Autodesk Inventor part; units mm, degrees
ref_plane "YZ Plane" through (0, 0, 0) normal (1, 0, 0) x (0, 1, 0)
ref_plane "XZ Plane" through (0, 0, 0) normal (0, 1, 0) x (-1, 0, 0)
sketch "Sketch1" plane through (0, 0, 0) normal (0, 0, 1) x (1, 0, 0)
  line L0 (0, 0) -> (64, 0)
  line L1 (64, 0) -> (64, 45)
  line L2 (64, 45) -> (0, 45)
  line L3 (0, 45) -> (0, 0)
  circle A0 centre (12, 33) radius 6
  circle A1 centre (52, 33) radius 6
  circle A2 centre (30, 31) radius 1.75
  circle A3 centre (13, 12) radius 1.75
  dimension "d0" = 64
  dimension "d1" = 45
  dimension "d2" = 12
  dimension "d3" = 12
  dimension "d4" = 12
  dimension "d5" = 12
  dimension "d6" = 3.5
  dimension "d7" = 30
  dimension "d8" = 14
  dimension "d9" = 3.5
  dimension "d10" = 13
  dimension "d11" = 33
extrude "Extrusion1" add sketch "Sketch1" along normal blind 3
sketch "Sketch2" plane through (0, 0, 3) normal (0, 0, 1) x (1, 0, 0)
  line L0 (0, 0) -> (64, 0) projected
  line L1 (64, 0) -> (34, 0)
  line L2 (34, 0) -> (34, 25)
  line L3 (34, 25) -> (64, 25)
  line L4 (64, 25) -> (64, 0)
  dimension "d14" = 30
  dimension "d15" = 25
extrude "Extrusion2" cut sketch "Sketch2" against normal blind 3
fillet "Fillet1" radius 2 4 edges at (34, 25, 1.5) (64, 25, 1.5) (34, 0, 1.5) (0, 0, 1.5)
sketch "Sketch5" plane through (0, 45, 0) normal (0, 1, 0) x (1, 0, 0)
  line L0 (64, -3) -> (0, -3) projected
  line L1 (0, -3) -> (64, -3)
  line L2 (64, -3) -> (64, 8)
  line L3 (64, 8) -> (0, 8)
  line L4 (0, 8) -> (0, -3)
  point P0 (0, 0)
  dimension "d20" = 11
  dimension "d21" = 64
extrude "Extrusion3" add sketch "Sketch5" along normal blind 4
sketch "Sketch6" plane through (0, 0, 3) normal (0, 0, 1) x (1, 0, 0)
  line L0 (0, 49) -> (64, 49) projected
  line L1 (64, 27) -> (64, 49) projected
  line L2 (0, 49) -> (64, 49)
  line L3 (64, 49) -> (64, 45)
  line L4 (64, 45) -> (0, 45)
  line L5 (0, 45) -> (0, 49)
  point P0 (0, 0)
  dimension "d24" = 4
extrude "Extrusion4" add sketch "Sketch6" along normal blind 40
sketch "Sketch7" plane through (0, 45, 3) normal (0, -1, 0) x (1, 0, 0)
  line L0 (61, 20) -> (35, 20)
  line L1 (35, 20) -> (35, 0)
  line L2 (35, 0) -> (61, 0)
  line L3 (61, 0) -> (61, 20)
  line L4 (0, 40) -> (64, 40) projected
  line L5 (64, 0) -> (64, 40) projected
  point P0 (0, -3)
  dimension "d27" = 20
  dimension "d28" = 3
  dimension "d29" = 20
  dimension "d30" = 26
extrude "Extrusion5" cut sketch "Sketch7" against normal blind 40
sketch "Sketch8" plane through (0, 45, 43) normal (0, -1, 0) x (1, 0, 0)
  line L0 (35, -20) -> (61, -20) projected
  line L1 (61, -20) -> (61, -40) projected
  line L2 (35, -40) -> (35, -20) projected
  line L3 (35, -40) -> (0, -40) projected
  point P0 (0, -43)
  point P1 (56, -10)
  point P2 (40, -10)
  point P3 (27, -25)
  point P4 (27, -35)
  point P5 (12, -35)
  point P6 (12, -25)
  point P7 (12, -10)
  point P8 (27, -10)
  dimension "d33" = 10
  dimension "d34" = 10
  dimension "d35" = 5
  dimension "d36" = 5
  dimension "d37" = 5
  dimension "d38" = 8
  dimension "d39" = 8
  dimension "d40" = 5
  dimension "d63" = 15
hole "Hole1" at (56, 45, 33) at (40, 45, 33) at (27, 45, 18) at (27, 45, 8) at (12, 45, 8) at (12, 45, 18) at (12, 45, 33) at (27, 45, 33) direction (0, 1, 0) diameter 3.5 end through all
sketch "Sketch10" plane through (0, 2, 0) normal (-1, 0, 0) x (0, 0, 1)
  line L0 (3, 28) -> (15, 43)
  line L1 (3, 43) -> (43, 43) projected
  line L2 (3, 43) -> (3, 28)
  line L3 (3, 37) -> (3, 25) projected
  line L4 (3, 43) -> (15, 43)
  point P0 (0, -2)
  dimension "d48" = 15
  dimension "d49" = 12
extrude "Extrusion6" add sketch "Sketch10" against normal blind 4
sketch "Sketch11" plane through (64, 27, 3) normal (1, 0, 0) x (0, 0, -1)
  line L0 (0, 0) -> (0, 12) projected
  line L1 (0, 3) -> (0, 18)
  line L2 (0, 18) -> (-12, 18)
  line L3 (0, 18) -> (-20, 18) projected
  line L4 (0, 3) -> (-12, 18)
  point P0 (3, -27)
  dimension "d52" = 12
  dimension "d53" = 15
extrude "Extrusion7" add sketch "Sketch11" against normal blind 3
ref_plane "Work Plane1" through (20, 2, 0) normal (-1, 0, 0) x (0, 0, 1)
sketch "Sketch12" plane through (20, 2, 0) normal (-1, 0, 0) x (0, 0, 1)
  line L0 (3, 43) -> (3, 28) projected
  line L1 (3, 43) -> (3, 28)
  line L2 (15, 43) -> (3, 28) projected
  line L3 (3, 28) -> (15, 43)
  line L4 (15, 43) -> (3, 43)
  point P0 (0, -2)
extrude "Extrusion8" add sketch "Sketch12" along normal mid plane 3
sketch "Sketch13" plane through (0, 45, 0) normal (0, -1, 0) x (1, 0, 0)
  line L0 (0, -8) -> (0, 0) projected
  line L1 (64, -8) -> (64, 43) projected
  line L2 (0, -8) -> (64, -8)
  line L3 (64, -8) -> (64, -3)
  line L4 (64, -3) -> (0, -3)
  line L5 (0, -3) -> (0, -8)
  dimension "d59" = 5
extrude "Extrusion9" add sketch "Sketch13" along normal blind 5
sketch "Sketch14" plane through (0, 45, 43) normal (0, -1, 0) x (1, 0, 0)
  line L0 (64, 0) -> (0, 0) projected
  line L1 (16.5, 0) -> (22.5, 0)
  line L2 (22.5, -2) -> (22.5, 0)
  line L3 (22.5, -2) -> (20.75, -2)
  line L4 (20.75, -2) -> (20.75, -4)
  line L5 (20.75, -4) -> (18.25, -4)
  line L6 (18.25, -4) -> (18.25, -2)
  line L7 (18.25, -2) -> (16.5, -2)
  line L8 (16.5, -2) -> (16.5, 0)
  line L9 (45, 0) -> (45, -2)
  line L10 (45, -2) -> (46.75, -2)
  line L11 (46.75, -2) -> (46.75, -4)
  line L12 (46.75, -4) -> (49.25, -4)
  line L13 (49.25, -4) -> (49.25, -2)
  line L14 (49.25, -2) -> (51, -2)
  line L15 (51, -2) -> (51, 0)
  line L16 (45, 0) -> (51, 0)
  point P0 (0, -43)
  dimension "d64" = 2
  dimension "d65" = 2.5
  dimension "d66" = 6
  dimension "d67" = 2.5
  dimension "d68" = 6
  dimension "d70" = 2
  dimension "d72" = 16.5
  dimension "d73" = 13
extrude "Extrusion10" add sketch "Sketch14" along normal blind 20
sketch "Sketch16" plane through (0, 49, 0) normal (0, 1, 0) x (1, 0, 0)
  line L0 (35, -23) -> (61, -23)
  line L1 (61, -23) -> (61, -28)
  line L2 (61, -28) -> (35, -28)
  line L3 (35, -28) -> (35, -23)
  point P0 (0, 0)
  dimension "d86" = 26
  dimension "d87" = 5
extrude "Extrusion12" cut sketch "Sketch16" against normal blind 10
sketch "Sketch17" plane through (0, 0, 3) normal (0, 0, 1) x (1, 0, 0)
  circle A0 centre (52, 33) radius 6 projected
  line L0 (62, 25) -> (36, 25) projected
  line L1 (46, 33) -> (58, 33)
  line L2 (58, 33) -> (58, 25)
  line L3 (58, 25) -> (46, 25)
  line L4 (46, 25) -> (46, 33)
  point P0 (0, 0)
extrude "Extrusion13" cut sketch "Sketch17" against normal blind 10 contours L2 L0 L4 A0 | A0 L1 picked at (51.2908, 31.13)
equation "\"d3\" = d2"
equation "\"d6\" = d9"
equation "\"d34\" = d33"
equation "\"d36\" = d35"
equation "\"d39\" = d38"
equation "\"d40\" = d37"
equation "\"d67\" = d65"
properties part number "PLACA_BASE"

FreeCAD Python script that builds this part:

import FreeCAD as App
import Part
import Sketcher

V = App.Vector


def edges_at(feature, points):
    """Names of the edges that pass closest to the given points."""
    edges = feature.Shape.Edges
    near = lambda p: min(range(len(edges)), key=lambda i: edges[i].distToShape(Part.Vertex(*p))[0])
    return sorted({f"Edge{near(p) + 1}" for p in points})

doc = App.newDocument("Part")
body = doc.addObject("PartDesign::Body", "Body")

sketch1 = body.newObject("Sketcher::SketchObject", "Sketch")
sketch1.AttachmentSupport = (doc.getObject("XY_Plane"), [""])
sketch1.MapMode = "FlatFace"
sketch1.addGeometry([
    Part.LineSegment(V(0, 45, 0), V(0, 0, 0)),
    Part.LineSegment(V(0, 0, 0), V(64, 0, 0)),
    Part.LineSegment(V(64, 0, 0), V(64, 45, 0)),
    Part.LineSegment(V(64, 45, 0), V(0, 45, 0)),
    Part.Circle(V(13, 12, 0), V(0, 0, 1), 1.75),
    Part.Circle(V(12, 33, 0), V(0, 0, 1), 6),
    Part.Circle(V(30, 31, 0), V(0, 0, 1), 1.75),
    Part.Circle(V(52, 33, 0), V(0, 0, 1), 6),
], False)
sketch1.addConstraint([
    Sketcher.Constraint("Coincident", 0, 2, 1, 1),
    Sketcher.Constraint("Coincident", 1, 2, 2, 1),
    Sketcher.Constraint("Coincident", 2, 2, 3, 1),
    Sketcher.Constraint("Coincident", 3, 2, 0, 1),
    Sketcher.Constraint("Vertical", 0),
    Sketcher.Constraint("Horizontal", 1),
    Sketcher.Constraint("Vertical", 2),
    Sketcher.Constraint("Horizontal", 3),
    Sketcher.Constraint("Coincident", 0, 2, -1, 1),
    Sketcher.Constraint("Equal", 4, 6),
    Sketcher.Constraint("Equal", 5, 7),
    Sketcher.Constraint("Horizontal", 5, 3, 7, 3),
    Sketcher.Constraint("Diameter", 5, 12.0),
    Sketcher.Constraint("Diameter", 4, 3.5),
    Sketcher.Constraint("DistanceX", 1, 1, 1, 2, 64.0),
    Sketcher.Constraint("DistanceY", 0, 2, 0, 1, 45.0),
    Sketcher.Constraint("DistanceX", -1, 1, 4, 3, 13.0),
    Sketcher.Constraint("DistanceY", -1, 1, 4, 3, 12.0),
    Sketcher.Constraint("DistanceX", -1, 1, 5, 3, 12.0),
    Sketcher.Constraint("DistanceY", -1, 1, 5, 3, 33.0),
    Sketcher.Constraint("DistanceX", -1, 1, 6, 3, 30.0),
    Sketcher.Constraint("DistanceX", 7, 3, 1, 2, 12.0),
    Sketcher.Constraint("DistanceY", 6, 3, 2, 2, 14.0),
])
pad1 = body.newObject("PartDesign::Pad", "Pad")
pad1.Profile = sketch1
pad1.Length = 3

sketch2 = body.newObject("Sketcher::SketchObject", "Sketch001")
sketch2.AttachmentSupport = (doc.getObject("XY_Plane"), [""])
sketch2.MapMode = "FlatFace"
sketch2.AttachmentOffset = App.Placement(V(0, 0, 3), App.Rotation())
sketch2.addGeometry([
    Part.LineSegment(V(34, 25, 0), V(34, 0, 0)),
    Part.LineSegment(V(34, 0, 0), V(64, 0, 0)),
    Part.LineSegment(V(64, 0, 0), V(64, 25, 0)),
    Part.LineSegment(V(64, 25, 0), V(34, 25, 0)),
], False)
sketch2.addConstraint([
    Sketcher.Constraint("Coincident", 0, 2, 1, 1),
    Sketcher.Constraint("Coincident", 1, 2, 2, 1),
    Sketcher.Constraint("Coincident", 2, 2, 3, 1),
    Sketcher.Constraint("Coincident", 3, 2, 0, 1),
    Sketcher.Constraint("Vertical", 0),
    Sketcher.Constraint("Horizontal", 1),
    Sketcher.Constraint("Vertical", 2),
    Sketcher.Constraint("Horizontal", 3),
    Sketcher.Constraint("PointOnObject", 0, 2, -1),
    Sketcher.Constraint("DistanceX", 1, 1, 1, 2, 30.0),
    Sketcher.Constraint("DistanceY", 0, 2, 0, 1, 25.0),
    Sketcher.Constraint("DistanceX", -1, 1, 0, 2, 34.0),
])
pocket1 = body.newObject("PartDesign::Pocket", "Pocket")
pocket1.Profile = sketch2
pocket1.Length = 3
doc.recompute()

fillet = body.newObject("PartDesign::Fillet", "Fillet")
fillet.Base = (pocket1, edges_at(pocket1, [
    (34, 25, 1.5),
    (64, 25, 1.5),
    (34, 0, 1.5),
    (0, 0, 1.5),
]))
fillet.Radius = 2

sketch3 = body.newObject("Sketcher::SketchObject", "Sketch002")
sketch3.AttachmentSupport = (doc.getObject("XZ_Plane"), [""])
sketch3.MapMode = "FlatFace"
sketch3.AttachmentOffset = App.Placement(V(0, 0, -45), App.Rotation())
sketch3.addGeometry([
    Part.LineSegment(V(0, 3, 0), V(64, 3, 0)),
    Part.LineSegment(V(64, 3, 0), V(64, -8, 0)),
    Part.LineSegment(V(64, -8, 0), V(0, -8, 0)),
    Part.LineSegment(V(0, -8, 0), V(0, 3, 0)),
], False)
sketch3.addConstraint([
    Sketcher.Constraint("Coincident", 0, 2, 1, 1),
    Sketcher.Constraint("Coincident", 1, 2, 2, 1),
    Sketcher.Constraint("Coincident", 2, 2, 3, 1),
    Sketcher.Constraint("Coincident", 3, 2, 0, 1),
    Sketcher.Constraint("Horizontal", 0),
    Sketcher.Constraint("Vertical", 1),
    Sketcher.Constraint("Horizontal", 2),
    Sketcher.Constraint("Vertical", 3),
    Sketcher.Constraint("PointOnObject", 2, 2, -2),
    Sketcher.Constraint("DistanceX", 0, 1, 0, 2, 64.0),
    Sketcher.Constraint("DistanceY", 1, 2, 1, 1, 11.0),
    Sketcher.Constraint("DistanceY", -1, 1, 0, 2, 3.0),
])
pad2 = body.newObject("PartDesign::Pad", "Pad001")
pad2.Profile = sketch3
pad2.Length = 4
pad2.Reversed = True

sketch4 = body.newObject("Sketcher::SketchObject", "Sketch003")
sketch4.AttachmentSupport = (doc.getObject("XY_Plane"), [""])
sketch4.MapMode = "FlatFace"
sketch4.AttachmentOffset = App.Placement(V(0, 0, 3), App.Rotation())
sketch4.addGeometry([
    Part.LineSegment(V(64, 49, 0), V(0, 49, 0)),
    Part.LineSegment(V(0, 49, 0), V(0, 45, 0)),
    Part.LineSegment(V(0, 45, 0), V(64, 45, 0)),
    Part.LineSegment(V(64, 45, 0), V(64, 49, 0)),
], False)
sketch4.addConstraint([
    Sketcher.Constraint("Coincident", 0, 2, 1, 1),
    Sketcher.Constraint("Coincident", 1, 2, 2, 1),
    Sketcher.Constraint("Coincident", 2, 2, 3, 1),
    Sketcher.Constraint("Coincident", 3, 2, 0, 1),
    Sketcher.Constraint("Horizontal", 0),
    Sketcher.Constraint("Vertical", 1),
    Sketcher.Constraint("Horizontal", 2),
    Sketcher.Constraint("Vertical", 3),
    Sketcher.Constraint("PointOnObject", 0, 2, -2),
    Sketcher.Constraint("DistanceY", 1, 2, 1, 1, 4.0),
    Sketcher.Constraint("DistanceX", 0, 2, 0, 1, 64.0),
    Sketcher.Constraint("DistanceY", -1, 1, 0, 2, 49.0),
])
pad3 = body.newObject("PartDesign::Pad", "Pad002")
pad3.Profile = sketch4
pad3.Length = 40

sketch5 = body.newObject("Sketcher::SketchObject", "Sketch004")
sketch5.AttachmentSupport = (doc.getObject("XZ_Plane"), [""])
sketch5.MapMode = "FlatFace"
sketch5.AttachmentOffset = App.Placement(V(0, 0, -45), App.Rotation())
sketch5.addGeometry([
    Part.LineSegment(V(61, 3, 0), V(61, 23, 0)),
    Part.LineSegment(V(61, 23, 0), V(35, 23, 0)),
    Part.LineSegment(V(35, 23, 0), V(35, 3, 0)),
    Part.LineSegment(V(35, 3, 0), V(61, 3, 0)),
], False)
sketch5.addConstraint([
    Sketcher.Constraint("Coincident", 0, 2, 1, 1),
    Sketcher.Constraint("Coincident", 1, 2, 2, 1),
    Sketcher.Constraint("Coincident", 2, 2, 3, 1),
    Sketcher.Constraint("Coincident", 3, 2, 0, 1),
    Sketcher.Constraint("Vertical", 0),
    Sketcher.Constraint("Horizontal", 1),
    Sketcher.Constraint("Vertical", 2),
    Sketcher.Constraint("Horizontal", 3),
    Sketcher.Constraint("DistanceX", 1, 2, 1, 1, 26.0),
    Sketcher.Constraint("DistanceY", 0, 1, 0, 2, 20.0),
    Sketcher.Constraint("DistanceY", -1, 1, 2, 2, 3.0),
    Sketcher.Constraint("DistanceX", -1, 1, 0, 2, 61.0),
])
pocket2 = body.newObject("PartDesign::Pocket", "Pocket001")
pocket2.Profile = sketch5
pocket2.Length = 40

sketch6 = body.newObject("Sketcher::SketchObject", "Sketch005")
sketch6.AttachmentSupport = (doc.getObject("XZ_Plane"), [""])
sketch6.MapMode = "FlatFace"
sketch6.AttachmentOffset = App.Placement(V(0, 0, -45), App.Rotation())
sketch6.addGeometry([
    Part.Circle(V(56, 33, 0), V(0, 0, 1), 1.75),
    Part.Circle(V(40, 33, 0), V(0, 0, 1), 1.75),
    Part.Circle(V(27, 18, 0), V(0, 0, 1), 1.75),
    Part.Circle(V(27, 8, 0), V(0, 0, 1), 1.75),
    Part.Circle(V(12, 8, 0), V(0, 0, 1), 1.75),
    Part.Circle(V(12, 18, 0), V(0, 0, 1), 1.75),
    Part.Circle(V(12, 33, 0), V(0, 0, 1), 1.75),
    Part.Circle(V(27, 33, 0), V(0, 0, 1), 1.75),
], False)
sketch6.addConstraint([
    Sketcher.Constraint("Equal", 0, 1),
    Sketcher.Constraint("Equal", 1, 2),
    Sketcher.Constraint("Equal", 2, 3),
    Sketcher.Constraint("Equal", 3, 4),
    Sketcher.Constraint("Equal", 4, 5),
    Sketcher.Constraint("Equal", 5, 6),
    Sketcher.Constraint("Equal", 6, 7),
    Sketcher.Constraint("Horizontal", 0, 3, 1, 3),
    Sketcher.Constraint("Horizontal", 3, 3, 4, 3),
    Sketcher.Constraint("Horizontal", 2, 3, 5, 3),
    Sketcher.Constraint("Horizontal", 1, 3, 6, 3),
    Sketcher.Constraint("Horizontal", 6, 3, 7, 3),
    Sketcher.Constraint("Vertical", 2, 3, 3, 3),
    Sketcher.Constraint("Vertical", 4, 3, 5, 3),
    Sketcher.Constraint("Vertical", 5, 3, 6, 3),
    Sketcher.Constraint("Vertical", 3, 3, 7, 3),
    Sketcher.Constraint("Diameter", 0, 3.5),
    Sketcher.Constraint("DistanceX", -1, 1, 0, 3, 56.0),
    Sketcher.Constraint("DistanceY", -1, 1, 0, 3, 33.0),
    Sketcher.Constraint("DistanceX", -1, 1, 1, 3, 40.0),
    Sketcher.Constraint("DistanceX", -1, 1, 2, 3, 27.0),
    Sketcher.Constraint("DistanceY", -1, 1, 2, 3, 18.0),
    Sketcher.Constraint("DistanceY", -1, 1, 3, 3, 8.0),
    Sketcher.Constraint("DistanceX", -1, 1, 4, 3, 12.0),
])
doc.recompute()
hole = body.newObject("PartDesign::Hole", "Hole")
hole.Profile = sketch6
hole.ThreadType = "None"
hole.Diameter = 3.5
hole.DepthType = "ThroughAll"

sketch7 = body.newObject("Sketcher::SketchObject", "Sketch006")
sketch7.AttachmentSupport = (doc.getObject("YZ_Plane"), [""])
sketch7.MapMode = "FlatFace"
sketch7.addGeometry([
    Part.LineSegment(V(45, 3, 0), V(30, 3, 0)),
    Part.LineSegment(V(30, 3, 0), V(45, 15, 0)),
    Part.LineSegment(V(45, 15, 0), V(45, 3, 0)),
], False)
sketch7.addConstraint([
    Sketcher.Constraint("Coincident", 0, 2, 1, 1),
    Sketcher.Constraint("Coincident", 1, 2, 2, 1),
    Sketcher.Constraint("Coincident", 2, 2, 0, 1),
    Sketcher.Constraint("Horizontal", 0),
    Sketcher.Constraint("Vertical", 2),
    Sketcher.Constraint("DistanceX", 0, 2, 0, 1, 15.0),
    Sketcher.Constraint("DistanceY", 2, 2, 2, 1, 12.0),
    Sketcher.Constraint("DistanceY", -1, 1, 1, 2, 15.0),
    Sketcher.Constraint("DistanceX", -1, 1, 0, 2, 30.0),
])
pad4 = body.newObject("PartDesign::Pad", "Pad003")
pad4.Profile = sketch7
pad4.Length = 4

sketch8 = body.newObject("Sketcher::SketchObject", "Sketch007")
sketch8.AttachmentSupport = (doc.getObject("YZ_Plane"), [""])
sketch8.MapMode = "FlatFace"
sketch8.AttachmentOffset = App.Placement(V(0, 0, 64), App.Rotation())
sketch8.addGeometry([
    Part.LineSegment(V(45, 15, 0), V(30, 3, 0)),
    Part.LineSegment(V(30, 3, 0), V(45, 3, 0)),
    Part.LineSegment(V(45, 3, 0), V(45, 15, 0)),
], False)
sketch8.addConstraint([
    Sketcher.Constraint("Coincident", 0, 2, 1, 1),
    Sketcher.Constraint("Coincident", 1, 2, 2, 1),
    Sketcher.Constraint("Coincident", 2, 2, 0, 1),
    Sketcher.Constraint("Horizontal", 1),
    Sketcher.Constraint("Vertical", 2),
    Sketcher.Constraint("DistanceX", 1, 1, 1, 2, 15.0),
    Sketcher.Constraint("DistanceY", 2, 1, 2, 2, 12.0),
    Sketcher.Constraint("DistanceY", -1, 1, 2, 2, 15.0),
    Sketcher.Constraint("DistanceX", -1, 1, 0, 2, 30.0),
])
pad5 = body.newObject("PartDesign::Pad", "Pad004")
pad5.Profile = sketch8
pad5.Length = 3
pad5.Reversed = True

sketch9 = body.newObject("Sketcher::SketchObject", "Sketch008")
sketch9.AttachmentSupport = (doc.getObject("YZ_Plane"), [""])
sketch9.MapMode = "FlatFace"
sketch9.AttachmentOffset = App.Placement(V(0, 0, 20), App.Rotation())
sketch9.addGeometry([
    Part.LineSegment(V(45, 15, 0), V(45, 3, 0)),
    Part.LineSegment(V(45, 3, 0), V(30, 3, 0)),
    Part.LineSegment(V(30, 3, 0), V(45, 15, 0)),
], False)
sketch9.addConstraint([
    Sketcher.Constraint("Coincident", 0, 2, 1, 1),
    Sketcher.Constraint("Coincident", 1, 2, 2, 1),
    Sketcher.Constraint("Coincident", 2, 2, 0, 1),
    Sketcher.Constraint("Vertical", 0),
    Sketcher.Constraint("Horizontal", 1),
    Sketcher.Constraint("DistanceX", 1, 2, 1, 1, 15.0),
    Sketcher.Constraint("DistanceY", 0, 2, 0, 1, 12.0),
    Sketcher.Constraint("DistanceX", -1, 1, 0, 2, 45.0),
    Sketcher.Constraint("DistanceY", -1, 1, 0, 2, 3.0),
])
pad6 = body.newObject("PartDesign::Pad", "Pad005")
pad6.Profile = sketch9
pad6.Length = 3
pad6.Midplane = True

sketch10 = body.newObject("Sketcher::SketchObject", "Sketch009")
sketch10.AttachmentSupport = (doc.getObject("XZ_Plane"), [""])
sketch10.MapMode = "FlatFace"
sketch10.AttachmentOffset = App.Placement(V(0, 0, -45), App.Rotation())
sketch10.addGeometry([
    Part.LineSegment(V(0, -3, 0), V(0, -8, 0)),
    Part.LineSegment(V(0, -8, 0), V(64, -8, 0)),
    Part.LineSegment(V(64, -8, 0), V(64, -3, 0)),
    Part.LineSegment(V(64, -3, 0), V(0, -3, 0)),
], False)
sketch10.addConstraint([
    Sketcher.Constraint("Coincident", 0, 2, 1, 1),
    Sketcher.Constraint("Coincident", 1, 2, 2, 1),
    Sketcher.Constraint("Coincident", 2, 2, 3, 1),
    Sketcher.Constraint("Coincident", 3, 2, 0, 1),
    Sketcher.Constraint("Vertical", 0),
    Sketcher.Constraint("Horizontal", 1),
    Sketcher.Constraint("Vertical", 2),
    Sketcher.Constraint("Horizontal", 3),
    Sketcher.Constraint("PointOnObject", 0, 2, -2),
    Sketcher.Constraint("DistanceY", 0, 2, 0, 1, 5.0),
    Sketcher.Constraint("DistanceX", 1, 1, 1, 2, 64.0),
    Sketcher.Constraint("DistanceY", 0, 2, -1, 1, 8.0),
])
pad7 = body.newObject("PartDesign::Pad", "Pad006")
pad7.Profile = sketch10
pad7.Length = 5

sketch11 = body.newObject("Sketcher::SketchObject", "Sketch010")
sketch11.AttachmentSupport = (doc.getObject("XZ_Plane"), [""])
sketch11.MapMode = "FlatFace"
sketch11.AttachmentOffset = App.Placement(V(0, 0, -45), App.Rotation())
sketch11.addGeometry([
    Part.LineSegment(V(51, 41, 0), V(51, 43, 0)),
    Part.LineSegment(V(51, 43, 0), V(45, 43, 0)),
    Part.LineSegment(V(45, 43, 0), V(45, 41, 0)),
    Part.LineSegment(V(45, 41, 0), V(46.75, 41, 0)),
    Part.LineSegment(V(46.75, 41, 0), V(46.75, 39, 0)),
    Part.LineSegment(V(46.75, 39, 0), V(49.25, 39, 0)),
    Part.LineSegment(V(49.25, 39, 0), V(49.25, 41, 0)),
    Part.LineSegment(V(49.25, 41, 0), V(51, 41, 0)),
    Part.LineSegment(V(22.5, 41, 0), V(22.5, 43, 0)),
    Part.LineSegment(V(22.5, 43, 0), V(16.5, 43, 0)),
    Part.LineSegment(V(16.5, 43, 0), V(16.5, 41, 0)),
    Part.LineSegment(V(16.5, 41, 0), V(18.25, 41, 0)),
    Part.LineSegment(V(18.25, 41, 0), V(18.25, 39, 0)),
    Part.LineSegment(V(18.25, 39, 0), V(20.75, 39, 0)),
    Part.LineSegment(V(20.75, 39, 0), V(20.75, 41, 0)),
    Part.LineSegment(V(20.75, 41, 0), V(22.5, 41, 0)),
], False)
sketch11.addConstraint([
    Sketcher.Constraint("Coincident", 0, 2, 1, 1),
    Sketcher.Constraint("Coincident", 1, 2, 2, 1),
    Sketcher.Constraint("Coincident", 2, 2, 3, 1),
    Sketcher.Constraint("Coincident", 3, 2, 4, 1),
    Sketcher.Constraint("Coincident", 4, 2, 5, 1),
    Sketcher.Constraint("Coincident", 5, 2, 6, 1),
    Sketcher.Constraint("Coincident", 6, 2, 7, 1),
    Sketcher.Constraint("Coincident", 7, 2, 0, 1),
    Sketcher.Constraint("Coincident", 8, 2, 9, 1),
    Sketcher.Constraint("Coincident", 9, 2, 10, 1),
    Sketcher.Constraint("Coincident", 10, 2, 11, 1),
    Sketcher.Constraint("Coincident", 11, 2, 12, 1),
    Sketcher.Constraint("Coincident", 12, 2, 13, 1),
    Sketcher.Constraint("Coincident", 13, 2, 14, 1),
    Sketcher.Constraint("Coincident", 14, 2, 15, 1),
    Sketcher.Constraint("Coincident", 15, 2, 8, 1),
    Sketcher.Constraint("Vertical", 0),
    Sketcher.Constraint("Horizontal", 1),
    Sketcher.Constraint("Vertical", 2),
    Sketcher.Constraint("Horizontal", 3),
    Sketcher.Constraint("Vertical", 4),
    Sketcher.Constraint("Horizontal", 5),
    Sketcher.Constraint("Vertical", 6),
    Sketcher.Constraint("Horizontal", 7),
    Sketcher.Constraint("Vertical", 8),
    Sketcher.Constraint("Horizontal", 9),
    Sketcher.Constraint("Vertical", 10),
    Sketcher.Constraint("Horizontal", 11),
    Sketcher.Constraint("Vertical", 12),
    Sketcher.Constraint("Horizontal", 13),
    Sketcher.Constraint("Vertical", 14),
    Sketcher.Constraint("Horizontal", 15),
    Sketcher.Constraint("Horizontal", 3, 2, 6, 2),
    Sketcher.Constraint("Horizontal", 1, 2, 8, 2),
    Sketcher.Constraint("Horizontal", 7, 2, 10, 2),
    Sketcher.Constraint("Horizontal", 5, 2, 12, 2),
    Sketcher.Constraint("Horizontal", 11, 2, 14, 2),
    Sketcher.Constraint("Equal", 3, 7),
    Sketcher.Constraint("Equal", 1, 9),
    Sketcher.Constraint("Equal", 7, 11),
    Sketcher.Constraint("Equal", 5, 13),
    Sketcher.Constraint("Equal", 2, 4),
    Sketcher.Constraint("DistanceX", 1, 2, 1, 1, 6.0),
    Sketcher.Constraint("DistanceY", 0, 1, 0, 2, 2.0),
    Sketcher.Constraint("DistanceX", 5, 1, 5, 2, 2.5),
    Sketcher.Constraint("DistanceX", -1, 1, 9, 2, 16.5),
    Sketcher.Constraint("DistanceX", -1, 1, 0, 2, 51.0),
    Sketcher.Constraint("DistanceY", -1, 1, 0, 2, 43.0),
])
pad8 = body.newObject("PartDesign::Pad", "Pad007")
pad8.Profile = sketch11
pad8.Length = 20

sketch12 = body.newObject("Sketcher::SketchObject", "Sketch011")
sketch12.AttachmentSupport = (doc.getObject("XZ_Plane"), [""])
sketch12.MapMode = "FlatFace"
sketch12.AttachmentOffset = App.Placement(V(0, 0, -49), App.Rotation())
sketch12.addGeometry([
    Part.LineSegment(V(61, 23, 0), V(35, 23, 0)),
    Part.LineSegment(V(35, 23, 0), V(35, 28, 0)),
    Part.LineSegment(V(35, 28, 0), V(61, 28, 0)),
    Part.LineSegment(V(61, 28, 0), V(61, 23, 0)),
], False)
sketch12.addConstraint([
    Sketcher.Constraint("Coincident", 0, 2, 1, 1),
    Sketcher.Constraint("Coincident", 1, 2, 2, 1),
    Sketcher.Constraint("Coincident", 2, 2, 3, 1),
    Sketcher.Constraint("Coincident", 3, 2, 0, 1),
    Sketcher.Constraint("Horizontal", 0),
    Sketcher.Constraint("Vertical", 1),
    Sketcher.Constraint("Horizontal", 2),
    Sketcher.Constraint("Vertical", 3),
    Sketcher.Constraint("DistanceX", 0, 2, 0, 1, 26.0),
    Sketcher.Constraint("DistanceY", 1, 1, 1, 2, 5.0),
    Sketcher.Constraint("DistanceX", -1, 1, 0, 2, 35.0),
    Sketcher.Constraint("DistanceY", -1, 1, 0, 2, 23.0),
])
pocket3 = body.newObject("PartDesign::Pocket", "Pocket002")
pocket3.Profile = sketch12
pocket3.Length = 10
pocket3.Reversed = True

sketch13 = body.newObject("Sketcher::SketchObject", "Sketch012")
sketch13.AttachmentSupport = (doc.getObject("XY_Plane"), [""])
sketch13.MapMode = "FlatFace"
sketch13.AttachmentOffset = App.Placement(V(0, 0, 3), App.Rotation())
sketch13.addGeometry([
    Part.LineSegment(V(58, 25, 0), V(58, 33, 0)),
    Part.LineSegment(V(58, 33, 0), V(46, 33, 0)),
    Part.LineSegment(V(46, 33, 0), V(46, 25, 0)),
    Part.LineSegment(V(46, 25, 0), V(58, 25, 0)),
], False)
sketch13.addConstraint([
    Sketcher.Constraint("Coincident", 0, 2, 1, 1),
    Sketcher.Constraint("Coincident", 1, 2, 2, 1),
    Sketcher.Constraint("Coincident", 2, 2, 3, 1),
    Sketcher.Constraint("Coincident", 3, 2, 0, 1),
    Sketcher.Constraint("Vertical", 0),
    Sketcher.Constraint("Horizontal", 1),
    Sketcher.Constraint("Vertical", 2),
    Sketcher.Constraint("Horizontal", 3),
    Sketcher.Constraint("DistanceX", 1, 2, 1, 1, 12.0),
    Sketcher.Constraint("DistanceY", 0, 1, 0, 2, 8.0),
    Sketcher.Constraint("DistanceX", -1, 1, 0, 2, 58.0),
    Sketcher.Constraint("DistanceY", -1, 1, 0, 2, 33.0),
])
pocket4 = body.newObject("PartDesign::Pocket", "Pocket003")
pocket4.Profile = sketch13
pocket4.Length = 10

doc.recompute()
